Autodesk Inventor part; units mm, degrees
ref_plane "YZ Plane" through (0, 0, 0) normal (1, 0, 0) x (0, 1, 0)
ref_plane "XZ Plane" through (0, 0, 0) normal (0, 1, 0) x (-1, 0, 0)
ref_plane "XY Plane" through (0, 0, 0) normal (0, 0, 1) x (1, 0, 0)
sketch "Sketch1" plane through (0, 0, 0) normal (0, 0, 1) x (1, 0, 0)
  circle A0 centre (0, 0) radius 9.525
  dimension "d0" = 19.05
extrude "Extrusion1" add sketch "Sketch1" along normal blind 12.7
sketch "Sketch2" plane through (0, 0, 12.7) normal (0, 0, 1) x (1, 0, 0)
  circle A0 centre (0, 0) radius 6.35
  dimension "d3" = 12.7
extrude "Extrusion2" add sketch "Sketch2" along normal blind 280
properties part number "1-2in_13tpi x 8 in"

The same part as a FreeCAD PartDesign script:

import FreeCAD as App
import Part
import Sketcher

V = App.Vector
Q = App.Units.Quantity

doc = App.newDocument("Part")
params = doc.addObject("Spreadsheet::Sheet", "Params")
for row, (alias, value) in enumerate([
    ("sketch1_diameter", "0.75 in"),
    ("pad1_length", "0.5 in"),
    ("sketch2_diameter", "0.5 in"),
    ("pad2_length", "280 mm"),
], start=1):
    params.set(f"A{row}", alias)
    params.set(f"B{row}", "=" + value)
    params.setAlias(f"B{row}", alias)

body = doc.addObject("PartDesign::Body", "Body")

# Sketch on XY plane
sketch1 = doc.addObject("Sketcher::SketchObject", "Sketch")
body.addObject(sketch1)
sketch1.AttachmentSupport = (doc.XY_Plane, [""])
sketch1.MapMode = "FlatFace"
sketch1.addGeometry(Part.Circle(V(0, 0, 0), V(0, 0, 1), 10), False)
sketch1.addConstraint([
    Sketcher.Constraint("Coincident", 0, 3, -1, 1),
    Sketcher.Constraint("Diameter", 0, Q("0.75 in")),
])
sketch1.setExpression("Constraints[1]", "Params.sketch1_diameter")
pad1 = doc.addObject("PartDesign::Pad", "Pad")
body.addObject(pad1)
pad1.Profile = sketch1
pad1.setExpression("Length", "Params.pad1_length")

# Sketch on XY plane
sketch2 = doc.addObject("Sketcher::SketchObject", "Sketch001")
body.addObject(sketch2)
sketch2.AttachmentSupport = (doc.XY_Plane, [""])
sketch2.MapMode = "FlatFace"
sketch2.AttachmentOffset = App.Placement(V(0, 0, 0.5 * 25.4), App.Rotation())
sketch2.addGeometry(Part.Circle(V(0, 0, 0), V(0, 0, 1), 6), False)
sketch2.addConstraint([
    Sketcher.Constraint("Coincident", 0, 3, -1, 1),
    Sketcher.Constraint("Diameter", 0, Q("0.5 in")),
])
sketch2.setExpression("Constraints[1]", "Params.sketch2_diameter")
pad2 = doc.addObject("PartDesign::Pad", "Pad001")
body.addObject(pad2)
pad2.Profile = sketch2
pad2.setExpression("Length", "Params.pad2_length")

doc.recompute()
